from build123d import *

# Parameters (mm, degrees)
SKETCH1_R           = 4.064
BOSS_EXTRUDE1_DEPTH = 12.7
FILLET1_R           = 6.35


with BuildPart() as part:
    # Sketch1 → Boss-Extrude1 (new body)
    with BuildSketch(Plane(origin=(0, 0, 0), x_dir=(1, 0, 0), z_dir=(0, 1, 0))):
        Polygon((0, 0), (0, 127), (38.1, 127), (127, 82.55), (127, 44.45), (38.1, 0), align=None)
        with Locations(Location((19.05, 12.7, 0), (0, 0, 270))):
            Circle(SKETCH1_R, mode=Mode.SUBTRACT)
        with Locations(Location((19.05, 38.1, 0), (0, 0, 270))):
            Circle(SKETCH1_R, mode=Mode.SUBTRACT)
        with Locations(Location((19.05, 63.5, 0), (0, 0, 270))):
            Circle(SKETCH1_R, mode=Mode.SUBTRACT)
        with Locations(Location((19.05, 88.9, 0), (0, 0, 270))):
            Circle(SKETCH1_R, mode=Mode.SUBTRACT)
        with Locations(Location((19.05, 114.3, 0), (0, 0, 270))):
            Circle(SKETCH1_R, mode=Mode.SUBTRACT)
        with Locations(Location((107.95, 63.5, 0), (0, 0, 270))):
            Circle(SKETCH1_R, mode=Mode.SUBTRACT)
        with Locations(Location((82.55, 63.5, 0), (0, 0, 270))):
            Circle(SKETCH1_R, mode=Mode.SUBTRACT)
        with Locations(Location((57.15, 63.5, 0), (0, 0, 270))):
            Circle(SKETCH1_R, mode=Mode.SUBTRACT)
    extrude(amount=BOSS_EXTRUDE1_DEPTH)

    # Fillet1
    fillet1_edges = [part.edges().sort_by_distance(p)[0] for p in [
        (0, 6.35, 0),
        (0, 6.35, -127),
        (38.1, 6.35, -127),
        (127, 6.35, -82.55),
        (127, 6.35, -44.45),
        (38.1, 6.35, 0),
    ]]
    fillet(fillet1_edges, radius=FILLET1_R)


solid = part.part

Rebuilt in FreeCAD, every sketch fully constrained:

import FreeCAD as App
import Part
import Sketcher
Q = App.Units.Quantity


def edges_at(feature, points):
    """Names of the edges that pass closest to the given points."""
    edges = feature.Shape.Edges
    near = lambda p: min(range(len(edges)), key=lambda i: edges[i].distToShape(Part.Vertex(*p))[0])
    return sorted({f"Edge{near(p) + 1}" for p in points})

doc = App.newDocument("Part")
body = doc.addObject("PartDesign::Body", "Body")

sketch1 = body.newObject("Sketcher::SketchObject", "Sketch")
sketch1.AttachmentSupport = (doc.getObject("XZ_Plane"), [""])
sketch1.MapMode = "FlatFace"
sketch1.addGeometry([
    Part.LineSegment(App.Vector(0, -127, 0), App.Vector(0, 0, 0)),
    Part.LineSegment(App.Vector(0, 0, 0), App.Vector(38.1, 0, 0)),
    Part.LineSegment(App.Vector(38.1, 0, 0), App.Vector(127, -44.5, 0)),
    Part.LineSegment(App.Vector(127, -44.5, 0), App.Vector(127, -82.5, 0)),
    Part.LineSegment(App.Vector(127, -82.5, 0), App.Vector(38.1, -127, 0)),
    Part.LineSegment(App.Vector(38.1, -127, 0), App.Vector(0, -127, 0)),
    Part.Circle(App.Vector(108, -63.5, 0), App.Vector(0, 0, 1), 4.1),
    Part.Circle(App.Vector(82.5, -63.5, 0), App.Vector(0, 0, 1), 4.1),
    Part.Circle(App.Vector(19.1, -12.7, 0), App.Vector(0, 0, 1), 4.1),
    Part.Circle(App.Vector(57.1, -63.5, 0), App.Vector(0, 0, 1), 4.1),
    Part.Circle(App.Vector(19.1, -38.1, 0), App.Vector(0, 0, 1), 4.1),
    Part.Circle(App.Vector(19.1, -63.5, 0), App.Vector(0, 0, 1), 4.1),
    Part.Circle(App.Vector(19.1, -88.9, 0), App.Vector(0, 0, 1), 4.1),
    Part.Circle(App.Vector(19.1, -114.3, 0), App.Vector(0, 0, 1), 4.1),
], False)
sketch1.addConstraint([
    Sketcher.Constraint("Coincident", 0, 2, 1, 1),
    Sketcher.Constraint("Coincident", 1, 2, 2, 1),
    Sketcher.Constraint("Coincident", 2, 2, 3, 1),
    Sketcher.Constraint("Coincident", 3, 2, 4, 1),
    Sketcher.Constraint("Coincident", 4, 2, 5, 1),
    Sketcher.Constraint("Coincident", 5, 2, 0, 1),
    Sketcher.Constraint("Vertical", 0),
    Sketcher.Constraint("Horizontal", 1),
    Sketcher.Constraint("Vertical", 3),
    Sketcher.Constraint("Horizontal", 5),
    Sketcher.Constraint("Coincident", 0, 2, -1, 1),
    Sketcher.Constraint("Equal", 6, 7),
    Sketcher.Constraint("Equal", 7, 8),
    Sketcher.Constraint("Equal", 8, 9),
    Sketcher.Constraint("Equal", 9, 10),
    Sketcher.Constraint("Equal", 10, 11),
    Sketcher.Constraint("Equal", 11, 12),
    Sketcher.Constraint("Equal", 12, 13),
    Sketcher.Constraint("Horizontal", 6, 3, 7, 3),
    Sketcher.Constraint("Horizontal", 7, 3, 9, 3),
    Sketcher.Constraint("Horizontal", 9, 3, 11, 3),
    Sketcher.Constraint("Vertical", 8, 3, 10, 3),
    Sketcher.Constraint("Vertical", 10, 3, 11, 3),
    Sketcher.Constraint("Vertical", 11, 3, 12, 3),
    Sketcher.Constraint("Vertical", 12, 3, 13, 3),
    Sketcher.Constraint("Vertical", 1, 2, 4, 2),
    Sketcher.Constraint("Equal", 5, 3),
    Sketcher.Constraint("Equal", 2, 4),
    Sketcher.Constraint("Diameter", 6, Q("0.32 in")),
    Sketcher.Constraint("DistanceY", 0, 1, 0, 2, Q("5 in")),
    Sketcher.Constraint("DistanceX", 1, 1, 1, 2, Q("1.5 in")),
    Sketcher.Constraint("DistanceX", -1, 1, 2, 2, Q("5 in")),
    Sketcher.Constraint("DistanceX", 7, 3, 6, 3, Q("1 in")),
    Sketcher.Constraint("DistanceY", 7, 3, 8, 3, Q("2 in")),
    Sketcher.Constraint("DistanceX", 9, 3, 7, 3, Q("1 in")),
    Sketcher.Constraint("DistanceY", 10, 3, 8, 3, Q("1 in")),
    Sketcher.Constraint("DistanceY", 12, 3, 11, 3, Q("1 in")),
    Sketcher.Constraint("DistanceY", 13, 3, 12, 3, Q("1 in")),
    Sketcher.Constraint("DistanceY", 6, 3, -1, 1, Q("2.5 in")),
    Sketcher.Constraint("DistanceX", 8, 3, 7, 3, Q("2.5 in")),
    Sketcher.Constraint("DistanceX", -1, 1, 6, 3, Q("4.25 in")),
])
pad1 = body.newObject("PartDesign::Pad", "Pad")
pad1.Profile = sketch1
pad1.Length = Q("0.5 in")
pad1.Reversed = True
doc.recompute()

fillet = body.newObject("PartDesign::Fillet", "Fillet")
fillet.Base = (pad1, edges_at(pad1, [
    (0, 6.35, 0),
    (0, 6.35, -127),
    (38.1, 6.35, -127),
    (127, 6.35, -82.55),
    (127, 6.35, -44.45),
    (38.1, 6.35, 0),
]))
fillet.Radius = Q("0.25 in")

doc.recompute()
